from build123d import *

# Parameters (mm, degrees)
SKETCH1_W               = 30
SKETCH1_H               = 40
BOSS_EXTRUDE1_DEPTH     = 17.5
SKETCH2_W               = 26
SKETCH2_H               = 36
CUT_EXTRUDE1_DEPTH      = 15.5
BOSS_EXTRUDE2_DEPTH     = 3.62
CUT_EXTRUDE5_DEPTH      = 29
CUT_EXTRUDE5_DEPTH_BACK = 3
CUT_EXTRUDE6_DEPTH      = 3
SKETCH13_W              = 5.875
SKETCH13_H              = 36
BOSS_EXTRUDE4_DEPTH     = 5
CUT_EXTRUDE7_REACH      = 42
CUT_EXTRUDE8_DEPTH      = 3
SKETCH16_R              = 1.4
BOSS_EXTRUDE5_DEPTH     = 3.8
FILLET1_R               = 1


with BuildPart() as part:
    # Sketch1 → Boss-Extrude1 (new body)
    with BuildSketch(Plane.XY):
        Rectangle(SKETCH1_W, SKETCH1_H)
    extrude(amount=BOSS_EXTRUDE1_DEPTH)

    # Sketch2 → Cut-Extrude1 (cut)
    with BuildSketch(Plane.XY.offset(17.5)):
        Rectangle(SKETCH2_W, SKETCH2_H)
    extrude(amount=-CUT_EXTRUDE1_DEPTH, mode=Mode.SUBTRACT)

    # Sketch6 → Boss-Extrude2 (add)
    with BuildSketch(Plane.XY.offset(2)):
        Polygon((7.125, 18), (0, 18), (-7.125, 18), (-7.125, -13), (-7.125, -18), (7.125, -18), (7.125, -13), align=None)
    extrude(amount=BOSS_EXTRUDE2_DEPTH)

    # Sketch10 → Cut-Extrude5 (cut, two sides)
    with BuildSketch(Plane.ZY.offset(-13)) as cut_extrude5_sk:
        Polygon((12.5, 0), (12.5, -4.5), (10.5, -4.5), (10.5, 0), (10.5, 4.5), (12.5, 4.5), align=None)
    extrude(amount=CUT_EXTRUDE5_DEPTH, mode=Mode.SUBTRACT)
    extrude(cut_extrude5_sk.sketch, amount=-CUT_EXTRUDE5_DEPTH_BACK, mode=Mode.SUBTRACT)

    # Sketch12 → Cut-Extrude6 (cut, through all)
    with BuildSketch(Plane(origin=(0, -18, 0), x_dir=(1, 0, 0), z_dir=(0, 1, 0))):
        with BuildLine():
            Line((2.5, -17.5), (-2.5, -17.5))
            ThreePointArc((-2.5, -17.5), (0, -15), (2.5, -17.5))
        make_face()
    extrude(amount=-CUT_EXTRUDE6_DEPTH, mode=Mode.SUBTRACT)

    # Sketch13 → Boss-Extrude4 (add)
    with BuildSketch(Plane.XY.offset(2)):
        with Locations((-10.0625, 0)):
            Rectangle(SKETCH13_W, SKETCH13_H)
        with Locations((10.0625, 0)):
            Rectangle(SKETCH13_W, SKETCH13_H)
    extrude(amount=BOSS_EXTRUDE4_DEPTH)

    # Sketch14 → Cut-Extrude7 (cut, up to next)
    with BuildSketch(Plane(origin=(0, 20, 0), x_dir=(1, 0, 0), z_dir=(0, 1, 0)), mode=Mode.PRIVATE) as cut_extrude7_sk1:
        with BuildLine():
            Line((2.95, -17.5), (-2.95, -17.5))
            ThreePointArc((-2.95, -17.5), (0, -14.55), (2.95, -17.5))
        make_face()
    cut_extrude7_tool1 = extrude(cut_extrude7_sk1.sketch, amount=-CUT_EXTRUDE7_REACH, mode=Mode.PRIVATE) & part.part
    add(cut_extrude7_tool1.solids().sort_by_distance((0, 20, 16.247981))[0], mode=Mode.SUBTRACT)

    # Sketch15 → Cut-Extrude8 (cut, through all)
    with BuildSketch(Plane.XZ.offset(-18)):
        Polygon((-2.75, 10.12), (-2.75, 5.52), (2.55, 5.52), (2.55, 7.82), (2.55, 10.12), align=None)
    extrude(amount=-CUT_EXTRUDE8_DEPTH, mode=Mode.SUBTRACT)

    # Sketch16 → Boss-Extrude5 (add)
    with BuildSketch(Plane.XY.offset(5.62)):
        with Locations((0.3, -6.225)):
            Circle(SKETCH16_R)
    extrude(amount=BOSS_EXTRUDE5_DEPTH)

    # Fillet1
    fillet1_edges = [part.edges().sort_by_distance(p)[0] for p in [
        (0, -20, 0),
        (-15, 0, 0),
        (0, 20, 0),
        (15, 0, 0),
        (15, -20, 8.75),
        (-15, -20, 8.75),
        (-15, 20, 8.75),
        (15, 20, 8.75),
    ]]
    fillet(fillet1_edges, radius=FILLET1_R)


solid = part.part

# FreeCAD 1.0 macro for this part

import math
import FreeCAD as App
import Part
import Sketcher

V = App.Vector
Q = App.Units.Quantity


def edges_at(feature, points):
    """Names of the edges that pass closest to the given points."""
    edges = feature.Shape.Edges
    near = lambda p: min(range(len(edges)), key=lambda i: edges[i].distToShape(Part.Vertex(*p))[0])
    return sorted({f"Edge{near(p) + 1}" for p in points})


def add_polygon(sketch, points):
    """Adds a closed chain of lines whose ends are joined by coincident constraints."""
    first, n = sketch.GeometryCount, len(points)
    for a, b in zip(points, points[1:] + points[:1]):
        sketch.addGeometry(Part.LineSegment(App.Vector(*a, 0), App.Vector(*b, 0)), False)
    for i in range(n):
        sketch.addConstraint(Sketcher.Constraint("Coincident", first + i, 2, first + (i + 1) % n, 1))

doc = App.newDocument("Part")
body = doc.addObject("PartDesign::Body", "Body")

sketch1 = body.newObject("Sketcher::SketchObject", "Sketch")
sketch1.AttachmentSupport = (doc.getObject("XY_Plane"), [""])
sketch1.MapMode = "FlatFace"
add_polygon(sketch1, [(-15, 20), (-15, -20), (15, -20), (15, 20)])
sketch1.addConstraint([
    Sketcher.Constraint("Vertical", 0),
    Sketcher.Constraint("Horizontal", 1),
    Sketcher.Constraint("Vertical", 2),
    Sketcher.Constraint("Horizontal", 3),
    Sketcher.Constraint("Symmetric", 0, 2, 2, 2, -1, 1),
    Sketcher.Constraint("DistanceX", 1, 1, 1, 2, Q("30 mm")),
    Sketcher.Constraint("DistanceY", 0, 2, 0, 1, Q("40 mm")),
])
pad1 = body.newObject("PartDesign::Pad", "Pad")
pad1.Profile = sketch1
pad1.Length = 17.5

sketch2 = body.newObject("Sketcher::SketchObject", "Sketch001")
sketch2.AttachmentSupport = (doc.getObject("XY_Plane"), [""])
sketch2.MapMode = "FlatFace"
sketch2.AttachmentOffset = App.Placement(V(0, 0, 17.5), App.Rotation())
add_polygon(sketch2, [(-13, 18), (-13, -18), (13, -18), (13, 18)])
sketch2.addConstraint([
    Sketcher.Constraint("Vertical", 0),
    Sketcher.Constraint("Horizontal", 1),
    Sketcher.Constraint("Vertical", 2),
    Sketcher.Constraint("Horizontal", 3),
    Sketcher.Constraint("Symmetric", 0, 2, 2, 2, -1, 1),
    Sketcher.Constraint("DistanceX", 1, 1, 1, 2, Q("26 mm")),
    Sketcher.Constraint("DistanceY", 0, 2, 0, 1, Q("36 mm")),
])
pocket1 = body.newObject("PartDesign::Pocket", "Pocket")
pocket1.Profile = sketch2
pocket1.Length = 15.5

sketch3 = body.newObject("Sketcher::SketchObject", "Sketch002")
sketch3.AttachmentSupport = (doc.getObject("XY_Plane"), [""])
sketch3.MapMode = "FlatFace"
sketch3.AttachmentOffset = App.Placement(V(0, 0, 2), App.Rotation())
add_polygon(sketch3, [(7, 18), (-7, 18), (-7, -18), (7, -18)])
sketch3.addConstraint([
    Sketcher.Constraint("Horizontal", 0),
    Sketcher.Constraint("Vertical", 1),
    Sketcher.Constraint("Horizontal", 2),
    Sketcher.Constraint("Vertical", 3),
    Sketcher.Constraint("Symmetric", 0, 2, 2, 2, -1, 1),
    Sketcher.Constraint("DistanceY", 1, 2, 1, 1, Q("36 mm")),
    Sketcher.Constraint("DistanceX", 0, 2, 0, 1, Q("14.25 mm")),
])
pad2 = body.newObject("PartDesign::Pad", "Pad001")
pad2.Profile = sketch3
pad2.Length = 3.62

sketch4 = body.newObject("Sketcher::SketchObject", "Sketch003")
sketch4.AttachmentSupport = (doc.getObject("YZ_Plane"), [""])
sketch4.MapMode = "FlatFace"
sketch4.AttachmentOffset = App.Placement(V(0, 0, 13), App.Rotation())
add_polygon(sketch4, [(-4.5, 12.5), (4.5, 12.5), (4.5, 10.5), (-4.5, 10.5)])
sketch4.addConstraint([
    Sketcher.Constraint("Horizontal", 0),
    Sketcher.Constraint("Vertical", 1),
    Sketcher.Constraint("Horizontal", 2),
    Sketcher.Constraint("Vertical", 3),
    Sketcher.Constraint("DistanceX", 0, 1, 0, 2, Q("9 mm")),
    Sketcher.Constraint("DistanceY", 1, 2, 1, 1, Q("2 mm")),
    Sketcher.Constraint("DistanceX", -1, 1, 0, 2, Q("4.5 mm")),
    Sketcher.Constraint("DistanceY", -1, 1, 0, 2, Q("12.5 mm")),
])
pocket2 = body.newObject("PartDesign::Pocket", "Pocket001")
pocket2.Profile = sketch4
pocket2.Type = "ThroughAll"
pocket2.Midplane = True

sketch5 = body.newObject("Sketcher::SketchObject", "Sketch004")
sketch5.AttachmentSupport = (doc.getObject("XZ_Plane"), [""])
sketch5.MapMode = "FlatFace"
sketch5.AttachmentOffset = App.Placement(V(0, 0, 18), App.Rotation())
sketch5.addGeometry([
    Part.LineSegment(V(-2.5, 17.5, 0), V(2.5, 17.5, 0)),
    Part.ArcOfCircle(Part.Circle(V(0, 17.5, 0), V(0, 0, 1), 2.5), math.radians(180), math.radians(360)),
], False)
sketch5.addConstraint([
    Sketcher.Constraint("Coincident", 0, 1, 1, 1),
    Sketcher.Constraint("Coincident", 1, 2, 0, 2),
    Sketcher.Constraint("Horizontal", 0),
    Sketcher.Constraint("PointOnObject", 1, 3, -2),
    Sketcher.Constraint("Horizontal", 1, 3, 0, 1),
    Sketcher.Constraint("Radius", 1, Q("2.5 mm")),
    Sketcher.Constraint("DistanceY", -1, 1, 1, 3, Q("17.5 mm")),
])
pocket3 = body.newObject("PartDesign::Pocket", "Pocket002")
pocket3.Profile = sketch5
pocket3.Type = "ThroughAll"
pocket3.Reversed = True

sketch6 = body.newObject("Sketcher::SketchObject", "Sketch005")
sketch6.AttachmentSupport = (doc.getObject("XY_Plane"), [""])
sketch6.MapMode = "FlatFace"
sketch6.AttachmentOffset = App.Placement(V(0, 0, 2), App.Rotation())
add_polygon(sketch6, [(-13, 18), (-13, -18), (-7, -18), (-7, 18)])
add_polygon(sketch6, [(7, 18), (7, -18), (13, -18), (13, 18)])
sketch6.addConstraint([
    Sketcher.Constraint("Vertical", 0),
    Sketcher.Constraint("Horizontal", 1),
    Sketcher.Constraint("Vertical", 2),
    Sketcher.Constraint("Horizontal", 3),
    Sketcher.Constraint("Vertical", 4),
    Sketcher.Constraint("Horizontal", 5),
    Sketcher.Constraint("Vertical", 6),
    Sketcher.Constraint("Horizontal", 7),
    Sketcher.Constraint("Symmetric", 2, 2, 4, 2, -1, 1),
    Sketcher.Constraint("Symmetric", 0, 2, 6, 2, -1, 1),
    Sketcher.Constraint("Horizontal", 1, 2, 4, 2),
    Sketcher.Constraint("DistanceY", 0, 2, 0, 1, Q("36 mm")),
    Sketcher.Constraint("DistanceX", 0, 2, -1, 1, Q("13 mm")),
    Sketcher.Constraint("DistanceX", 1, 1, 1, 2, Q("5.875 mm")),
])
pad3 = body.newObject("PartDesign::Pad", "Pad002")
pad3.Profile = sketch6
pad3.Length = 5

sketch7 = body.newObject("Sketcher::SketchObject", "Sketch006")
sketch7.AttachmentSupport = (doc.getObject("XZ_Plane"), [""])
sketch7.MapMode = "FlatFace"
sketch7.AttachmentOffset = App.Placement(V(0, 0, -20), App.Rotation())
sketch7.addGeometry([
    Part.LineSegment(V(-3, 17.5, 0), V(3, 17.5, 0)),
    Part.ArcOfCircle(Part.Circle(V(0, 17.5, 0), V(0, 0, 1), 3), math.radians(180), math.radians(360)),
], False)
sketch7.addConstraint([
    Sketcher.Constraint("Coincident", 0, 1, 1, 1),
    Sketcher.Constraint("Coincident", 1, 2, 0, 2),
    Sketcher.Constraint("Horizontal", 0),
    Sketcher.Constraint("PointOnObject", 1, 3, -2),
    Sketcher.Constraint("Horizontal", 1, 3, 0, 1),
    Sketcher.Constraint("Radius", 1, Q("2.95 mm")),
    Sketcher.Constraint("DistanceY", -1, 1, 1, 3, Q("17.5 mm")),
])
pocket4 = body.newObject("PartDesign::Pocket", "Pocket003")
pocket4.Profile = sketch7
pocket4.Type = "UpToFirst"
pocket4.Reversed = True

sketch8 = body.newObject("Sketcher::SketchObject", "Sketch007")
sketch8.AttachmentSupport = (doc.getObject("XZ_Plane"), [""])
sketch8.MapMode = "FlatFace"
sketch8.AttachmentOffset = App.Placement(V(0, 0, -18), App.Rotation())
add_polygon(sketch8, [(-2.8, 10.1), (-2.8, 5.5), (2.5, 5.5), (2.5, 10.1)])
sketch8.addConstraint([
    Sketcher.Constraint("Vertical", 0),
    Sketcher.Constraint("Horizontal", 1),
    Sketcher.Constraint("Vertical", 2),
    Sketcher.Constraint("Horizontal", 3),
    Sketcher.Constraint("DistanceX", 1, 1, 1, 2, Q("5.3 mm")),
    Sketcher.Constraint("DistanceY", 0, 2, 0, 1, Q("4.6 mm")),
    Sketcher.Constraint("DistanceX", 0, 2, -1, 1, Q("2.75 mm")),
    Sketcher.Constraint("DistanceY", -1, 1, 0, 2, Q("5.52 mm")),
])
pocket5 = body.newObject("PartDesign::Pocket", "Pocket004")
pocket5.Profile = sketch8
pocket5.Type = "ThroughAll"

sketch9 = body.newObject("Sketcher::SketchObject", "Sketch008")
sketch9.AttachmentSupport = (doc.getObject("XY_Plane"), [""])
sketch9.MapMode = "FlatFace"
sketch9.AttachmentOffset = App.Placement(V(0, 0, 5.62), App.Rotation())
sketch9.addGeometry(Part.Circle(V(0.3, -6.2, 0), V(0, 0, 1), 1.4), False)
sketch9.addConstraint([
    Sketcher.Constraint("Diameter", 0, Q("2.8 mm")),
    Sketcher.Constraint("DistanceX", -1, 1, 0, 3, Q("0.3 mm")),
    Sketcher.Constraint("DistanceY", 0, 3, -1, 1, Q("6.225 mm")),
])
pad4 = body.newObject("PartDesign::Pad", "Pad003")
pad4.Profile = sketch9
pad4.Length = 3.8
doc.recompute()

fillet = body.newObject("PartDesign::Fillet", "Fillet")
fillet.Base = (pad4, edges_at(pad4, [
    (0, -20, 0),
    (-15, 0, 0),
    (0, 20, 0),
    (15, 0, 0),
    (15, -20, 8.75),
    (-15, -20, 8.75),
    (-15, 20, 8.75),
    (15, 20, 8.75),
]))
fillet.Radius = 1

doc.recompute()
